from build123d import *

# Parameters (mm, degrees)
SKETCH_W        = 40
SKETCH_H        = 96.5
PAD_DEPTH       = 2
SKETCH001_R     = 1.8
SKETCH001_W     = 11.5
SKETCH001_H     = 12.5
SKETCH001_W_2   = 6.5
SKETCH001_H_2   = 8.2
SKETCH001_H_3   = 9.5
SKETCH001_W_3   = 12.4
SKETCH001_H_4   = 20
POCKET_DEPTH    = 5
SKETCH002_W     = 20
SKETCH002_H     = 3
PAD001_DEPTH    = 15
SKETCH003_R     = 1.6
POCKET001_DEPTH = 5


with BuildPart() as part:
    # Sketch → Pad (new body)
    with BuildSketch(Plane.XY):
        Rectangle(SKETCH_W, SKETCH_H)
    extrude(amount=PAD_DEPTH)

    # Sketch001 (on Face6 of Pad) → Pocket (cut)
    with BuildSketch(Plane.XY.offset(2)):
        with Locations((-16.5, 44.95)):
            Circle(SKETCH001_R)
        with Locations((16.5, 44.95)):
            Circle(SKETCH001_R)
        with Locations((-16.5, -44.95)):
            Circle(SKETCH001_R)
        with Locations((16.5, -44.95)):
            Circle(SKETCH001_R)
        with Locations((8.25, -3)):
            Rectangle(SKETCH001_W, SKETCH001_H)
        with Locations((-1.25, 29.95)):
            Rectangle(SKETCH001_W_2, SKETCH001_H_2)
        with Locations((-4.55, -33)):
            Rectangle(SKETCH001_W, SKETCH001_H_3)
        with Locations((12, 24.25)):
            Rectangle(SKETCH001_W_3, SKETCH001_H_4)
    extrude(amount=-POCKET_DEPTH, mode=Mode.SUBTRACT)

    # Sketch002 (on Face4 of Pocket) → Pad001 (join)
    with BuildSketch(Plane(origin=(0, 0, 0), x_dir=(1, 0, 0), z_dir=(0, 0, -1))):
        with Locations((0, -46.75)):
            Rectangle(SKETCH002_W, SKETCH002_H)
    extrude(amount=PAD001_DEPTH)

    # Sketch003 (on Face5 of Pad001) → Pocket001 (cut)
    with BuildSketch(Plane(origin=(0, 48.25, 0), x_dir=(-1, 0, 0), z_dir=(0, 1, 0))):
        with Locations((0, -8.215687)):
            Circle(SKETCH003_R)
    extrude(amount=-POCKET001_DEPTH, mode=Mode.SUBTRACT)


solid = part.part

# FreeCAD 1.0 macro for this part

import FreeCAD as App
import Part
import Sketcher
Q = App.Units.Quantity


def add_polygon(sketch, points):
    """Adds a closed chain of lines whose ends are joined by coincident constraints."""
    first, n = sketch.GeometryCount, len(points)
    for a, b in zip(points, points[1:] + points[:1]):
        sketch.addGeometry(Part.LineSegment(App.Vector(*a, 0), App.Vector(*b, 0)), False)
    for i in range(n):
        sketch.addConstraint(Sketcher.Constraint("Coincident", first + i, 2, first + (i + 1) % n, 1))

doc = App.newDocument("Part")
params = doc.addObject("Spreadsheet::Sheet", "Params")
for row, (alias, value) in enumerate([
    ("sketch1_width", "40 mm"),
    ("sketch1_height", "96.5 mm"),
    ("pad1_length", "2 mm"),
    ("sketch2_diameter", "3.6 mm"),
    ("sketch2_height", "20 mm"),
    ("sketch2_width", "11.5 mm"),
    ("sketch2_width2", "6.5 mm"),
    ("sketch2_width3", "12.4 mm"),
    ("pocket1_length", "5 mm"),
    ("sketch3_width", "20 mm"),
    ("sketch3_height", "3 mm"),
    ("pad2_length", "15 mm"),
    ("sketch4_diameter", "3.2 mm"),
    ("pocket2_length", "5 mm"),
], start=1):
    params.set(f"A{row}", alias)
    params.set(f"B{row}", "=" + value)
    params.setAlias(f"B{row}", alias)

body = doc.addObject("PartDesign::Body", "Body")

sketch1 = doc.addObject("Sketcher::SketchObject", "Sketch")
body.addObject(sketch1)
sketch1.AttachmentSupport = (doc.XY_Plane, [""])
sketch1.MapMode = "FlatFace"
add_polygon(sketch1, [(-20, 48), (-20, -48), (20, -48), (20, 48)])
sketch1.addConstraint([
    Sketcher.Constraint("Vertical", 0),
    Sketcher.Constraint("Horizontal", 1),
    Sketcher.Constraint("Vertical", 2),
    Sketcher.Constraint("Horizontal", 3),
    Sketcher.Constraint("Symmetric", 0, 2, 2, 2, -1, 1),
    Sketcher.Constraint("DistanceX", 1, 1, 1, 2, Q("40 mm")),
    Sketcher.Constraint("DistanceY", 0, 2, 0, 1, Q("96.5 mm")),
])
sketch1.setExpression("Constraints[9]", "Params.sketch1_width")
sketch1.setExpression("Constraints[10]", "Params.sketch1_height")
pad1 = doc.addObject("PartDesign::Pad", "Pad")
body.addObject(pad1)
pad1.Profile = sketch1
pad1.setExpression("Length", "Params.pad1_length")

sketch2 = doc.addObject("Sketcher::SketchObject", "Sketch001")
body.addObject(sketch2)
sketch2.AttachmentSupport = (doc.XY_Plane, [""])
sketch2.MapMode = "FlatFace"
sketch2.AttachmentOffset = App.Placement(App.Vector(0, 0, 2), App.Rotation())
sketch2.addGeometry(Part.Circle(App.Vector(-16.5, 45, 0), App.Vector(0, 0, 1), 1.8), False)
sketch2.addGeometry(Part.Circle(App.Vector(16.5, 45, 0), App.Vector(0, 0, 1), 1.8), False)
sketch2.addGeometry(Part.Circle(App.Vector(-16.5, -45, 0), App.Vector(0, 0, 1), 1.8), False)
sketch2.addGeometry(Part.Circle(App.Vector(16.5, -45, 0), App.Vector(0, 0, 1), 1.8), False)
add_polygon(sketch2, [(2.5, 3.2), (2.5, -9.2), (14, -9.2), (14, 3.2)])
add_polygon(sketch2, [(-4.5, 34), (-4.5, 25.9), (2, 25.9), (2, 34)])
add_polygon(sketch2, [(-10.3, -28.2), (-10.3, -37.8), (1.2, -37.8), (1.2, -28.2)])
add_polygon(sketch2, [(5.8, 34.2), (5.8, 14.2), (18.2, 14.2), (18.2, 34.2)])
sketch2.addConstraint([
    Sketcher.Constraint("Vertical", 4),
    Sketcher.Constraint("Horizontal", 5),
    Sketcher.Constraint("Vertical", 6),
    Sketcher.Constraint("Horizontal", 7),
    Sketcher.Constraint("Vertical", 8),
    Sketcher.Constraint("Horizontal", 9),
    Sketcher.Constraint("Vertical", 10),
    Sketcher.Constraint("Horizontal", 11),
    Sketcher.Constraint("Vertical", 12),
    Sketcher.Constraint("Horizontal", 13),
    Sketcher.Constraint("Vertical", 14),
    Sketcher.Constraint("Horizontal", 15),
    Sketcher.Constraint("Vertical", 16),
    Sketcher.Constraint("Horizontal", 17),
    Sketcher.Constraint("Vertical", 18),
    Sketcher.Constraint("Horizontal", 19),
    Sketcher.Constraint("Equal", 0, 1),
    Sketcher.Constraint("Equal", 1, 2),
    Sketcher.Constraint("Equal", 2, 3),
    Sketcher.Constraint("Symmetric", 1, 3, 2, 3, -1, 1),
    Sketcher.Constraint("Symmetric", 0, 3, 3, 3, -1, 1),
    Sketcher.Constraint("Symmetric", 0, 3, 1, 3, -2),
    Sketcher.Constraint("Equal", 7, 13),
    Sketcher.Constraint("Diameter", 0, Q("3.6 mm")),
    Sketcher.Constraint("DistanceY", 16, 2, 16, 1, Q("20 mm")),
    Sketcher.Constraint("DistanceX", 5, 1, 5, 2, Q("11.5 mm")),
    Sketcher.Constraint("DistanceX", 9, 1, 9, 2, Q("6.5 mm")),
    Sketcher.Constraint("DistanceX", 17, 1, 17, 2, Q("12.4 mm")),
    Sketcher.Constraint("DistanceY", 4, 2, 4, 1, Q("12.5 mm")),
    Sketcher.Constraint("DistanceY", 8, 2, 8, 1, Q("8.2 mm")),
    Sketcher.Constraint("DistanceY", 12, 2, 12, 1, Q("9.5 mm")),
    Sketcher.Constraint("DistanceX", -1, 1, 5, 2, Q("14 mm")),
    Sketcher.Constraint("DistanceX", -1, 1, 9, 2, Q("2 mm")),
    Sketcher.Constraint("DistanceX", 0, 3, 1, 3, Q("33 mm")),
    Sketcher.Constraint("DistanceY", 12, 2, 7, 2, Q("41 mm")),
    Sketcher.Constraint("DistanceY", 7, 2, 16, 2, Q("11 mm")),
    Sketcher.Constraint("DistanceX", 12, 2, -1, 1, Q("10.3 mm")),
    Sketcher.Constraint("DistanceX", -1, 1, 16, 2, Q("5.8 mm")),
    Sketcher.Constraint("DistanceY", 2, 3, 0, 3, Q("89.9 mm")),
    Sketcher.Constraint("DistanceY", 3, 3, 4, 2, Q("35.7 mm")),
    Sketcher.Constraint("DistanceY", 8, 2, 0, 3, Q("19.1 mm")),
])
sketch2.setExpression("Constraints[39]", "Params.sketch2_diameter")
sketch2.setExpression("Constraints[40]", "Params.sketch2_height")
sketch2.setExpression("Constraints[41]", "Params.sketch2_width")
sketch2.setExpression("Constraints[42]", "Params.sketch2_width2")
sketch2.setExpression("Constraints[43]", "Params.sketch2_width3")
pocket1 = doc.addObject("PartDesign::Pocket", "Pocket")
body.addObject(pocket1)
pocket1.Profile = sketch2
pocket1.setExpression("Length", "Params.pocket1_length")

sketch3 = doc.addObject("Sketcher::SketchObject", "Sketch002")
body.addObject(sketch3)
sketch3.AttachmentSupport = (doc.XY_Plane, [""])
sketch3.MapMode = "FlatFace"
add_polygon(sketch3, [(-10, 45.2), (-10, 48.2), (10, 48.2), (10, 45.2)])
sketch3.addConstraint([
    Sketcher.Constraint("Vertical", 0),
    Sketcher.Constraint("Horizontal", 1),
    Sketcher.Constraint("Vertical", 2),
    Sketcher.Constraint("Horizontal", 3),
    Sketcher.Constraint("DistanceX", 1, 1, 1, 2, Q("20 mm")),
    Sketcher.Constraint("DistanceY", 0, 1, 0, 2, Q("3 mm")),
    Sketcher.Constraint("DistanceX", 0, 2, -1, 1, Q("10 mm")),
    Sketcher.Constraint("DistanceY", -1, 1, 0, 2, Q("48.25 mm")),
])
sketch3.setExpression("Constraints[8]", "Params.sketch3_width")
sketch3.setExpression("Constraints[9]", "Params.sketch3_height")
pad2 = doc.addObject("PartDesign::Pad", "Pad001")
body.addObject(pad2)
pad2.Profile = sketch3
pad2.setExpression("Length", "Params.pad2_length")
pad2.Reversed = True

sketch4 = doc.addObject("Sketcher::SketchObject", "Sketch003")
body.addObject(sketch4)
sketch4.AttachmentSupport = (doc.XZ_Plane, [""])
sketch4.MapMode = "FlatFace"
sketch4.AttachmentOffset = App.Placement(App.Vector(0, 0, -48.25), App.Rotation())
sketch4.addGeometry(Part.Circle(App.Vector(0, -8.2, 0), App.Vector(0, 0, 1), 1.6), False)
sketch4.addConstraint([
    Sketcher.Constraint("PointOnObject", 0, 3, -2),
    Sketcher.Constraint("Diameter", 0, Q("3.2 mm")),
    Sketcher.Constraint("DistanceY", 0, 3, -1, 1, Q("8.215687 mm")),
])
sketch4.setExpression("Constraints[1]", "Params.sketch4_diameter")
pocket2 = doc.addObject("PartDesign::Pocket", "Pocket001")
body.addObject(pocket2)
pocket2.Profile = sketch4
pocket2.setExpression("Length", "Params.pocket2_length")
pocket2.Reversed = True

doc.recompute()
